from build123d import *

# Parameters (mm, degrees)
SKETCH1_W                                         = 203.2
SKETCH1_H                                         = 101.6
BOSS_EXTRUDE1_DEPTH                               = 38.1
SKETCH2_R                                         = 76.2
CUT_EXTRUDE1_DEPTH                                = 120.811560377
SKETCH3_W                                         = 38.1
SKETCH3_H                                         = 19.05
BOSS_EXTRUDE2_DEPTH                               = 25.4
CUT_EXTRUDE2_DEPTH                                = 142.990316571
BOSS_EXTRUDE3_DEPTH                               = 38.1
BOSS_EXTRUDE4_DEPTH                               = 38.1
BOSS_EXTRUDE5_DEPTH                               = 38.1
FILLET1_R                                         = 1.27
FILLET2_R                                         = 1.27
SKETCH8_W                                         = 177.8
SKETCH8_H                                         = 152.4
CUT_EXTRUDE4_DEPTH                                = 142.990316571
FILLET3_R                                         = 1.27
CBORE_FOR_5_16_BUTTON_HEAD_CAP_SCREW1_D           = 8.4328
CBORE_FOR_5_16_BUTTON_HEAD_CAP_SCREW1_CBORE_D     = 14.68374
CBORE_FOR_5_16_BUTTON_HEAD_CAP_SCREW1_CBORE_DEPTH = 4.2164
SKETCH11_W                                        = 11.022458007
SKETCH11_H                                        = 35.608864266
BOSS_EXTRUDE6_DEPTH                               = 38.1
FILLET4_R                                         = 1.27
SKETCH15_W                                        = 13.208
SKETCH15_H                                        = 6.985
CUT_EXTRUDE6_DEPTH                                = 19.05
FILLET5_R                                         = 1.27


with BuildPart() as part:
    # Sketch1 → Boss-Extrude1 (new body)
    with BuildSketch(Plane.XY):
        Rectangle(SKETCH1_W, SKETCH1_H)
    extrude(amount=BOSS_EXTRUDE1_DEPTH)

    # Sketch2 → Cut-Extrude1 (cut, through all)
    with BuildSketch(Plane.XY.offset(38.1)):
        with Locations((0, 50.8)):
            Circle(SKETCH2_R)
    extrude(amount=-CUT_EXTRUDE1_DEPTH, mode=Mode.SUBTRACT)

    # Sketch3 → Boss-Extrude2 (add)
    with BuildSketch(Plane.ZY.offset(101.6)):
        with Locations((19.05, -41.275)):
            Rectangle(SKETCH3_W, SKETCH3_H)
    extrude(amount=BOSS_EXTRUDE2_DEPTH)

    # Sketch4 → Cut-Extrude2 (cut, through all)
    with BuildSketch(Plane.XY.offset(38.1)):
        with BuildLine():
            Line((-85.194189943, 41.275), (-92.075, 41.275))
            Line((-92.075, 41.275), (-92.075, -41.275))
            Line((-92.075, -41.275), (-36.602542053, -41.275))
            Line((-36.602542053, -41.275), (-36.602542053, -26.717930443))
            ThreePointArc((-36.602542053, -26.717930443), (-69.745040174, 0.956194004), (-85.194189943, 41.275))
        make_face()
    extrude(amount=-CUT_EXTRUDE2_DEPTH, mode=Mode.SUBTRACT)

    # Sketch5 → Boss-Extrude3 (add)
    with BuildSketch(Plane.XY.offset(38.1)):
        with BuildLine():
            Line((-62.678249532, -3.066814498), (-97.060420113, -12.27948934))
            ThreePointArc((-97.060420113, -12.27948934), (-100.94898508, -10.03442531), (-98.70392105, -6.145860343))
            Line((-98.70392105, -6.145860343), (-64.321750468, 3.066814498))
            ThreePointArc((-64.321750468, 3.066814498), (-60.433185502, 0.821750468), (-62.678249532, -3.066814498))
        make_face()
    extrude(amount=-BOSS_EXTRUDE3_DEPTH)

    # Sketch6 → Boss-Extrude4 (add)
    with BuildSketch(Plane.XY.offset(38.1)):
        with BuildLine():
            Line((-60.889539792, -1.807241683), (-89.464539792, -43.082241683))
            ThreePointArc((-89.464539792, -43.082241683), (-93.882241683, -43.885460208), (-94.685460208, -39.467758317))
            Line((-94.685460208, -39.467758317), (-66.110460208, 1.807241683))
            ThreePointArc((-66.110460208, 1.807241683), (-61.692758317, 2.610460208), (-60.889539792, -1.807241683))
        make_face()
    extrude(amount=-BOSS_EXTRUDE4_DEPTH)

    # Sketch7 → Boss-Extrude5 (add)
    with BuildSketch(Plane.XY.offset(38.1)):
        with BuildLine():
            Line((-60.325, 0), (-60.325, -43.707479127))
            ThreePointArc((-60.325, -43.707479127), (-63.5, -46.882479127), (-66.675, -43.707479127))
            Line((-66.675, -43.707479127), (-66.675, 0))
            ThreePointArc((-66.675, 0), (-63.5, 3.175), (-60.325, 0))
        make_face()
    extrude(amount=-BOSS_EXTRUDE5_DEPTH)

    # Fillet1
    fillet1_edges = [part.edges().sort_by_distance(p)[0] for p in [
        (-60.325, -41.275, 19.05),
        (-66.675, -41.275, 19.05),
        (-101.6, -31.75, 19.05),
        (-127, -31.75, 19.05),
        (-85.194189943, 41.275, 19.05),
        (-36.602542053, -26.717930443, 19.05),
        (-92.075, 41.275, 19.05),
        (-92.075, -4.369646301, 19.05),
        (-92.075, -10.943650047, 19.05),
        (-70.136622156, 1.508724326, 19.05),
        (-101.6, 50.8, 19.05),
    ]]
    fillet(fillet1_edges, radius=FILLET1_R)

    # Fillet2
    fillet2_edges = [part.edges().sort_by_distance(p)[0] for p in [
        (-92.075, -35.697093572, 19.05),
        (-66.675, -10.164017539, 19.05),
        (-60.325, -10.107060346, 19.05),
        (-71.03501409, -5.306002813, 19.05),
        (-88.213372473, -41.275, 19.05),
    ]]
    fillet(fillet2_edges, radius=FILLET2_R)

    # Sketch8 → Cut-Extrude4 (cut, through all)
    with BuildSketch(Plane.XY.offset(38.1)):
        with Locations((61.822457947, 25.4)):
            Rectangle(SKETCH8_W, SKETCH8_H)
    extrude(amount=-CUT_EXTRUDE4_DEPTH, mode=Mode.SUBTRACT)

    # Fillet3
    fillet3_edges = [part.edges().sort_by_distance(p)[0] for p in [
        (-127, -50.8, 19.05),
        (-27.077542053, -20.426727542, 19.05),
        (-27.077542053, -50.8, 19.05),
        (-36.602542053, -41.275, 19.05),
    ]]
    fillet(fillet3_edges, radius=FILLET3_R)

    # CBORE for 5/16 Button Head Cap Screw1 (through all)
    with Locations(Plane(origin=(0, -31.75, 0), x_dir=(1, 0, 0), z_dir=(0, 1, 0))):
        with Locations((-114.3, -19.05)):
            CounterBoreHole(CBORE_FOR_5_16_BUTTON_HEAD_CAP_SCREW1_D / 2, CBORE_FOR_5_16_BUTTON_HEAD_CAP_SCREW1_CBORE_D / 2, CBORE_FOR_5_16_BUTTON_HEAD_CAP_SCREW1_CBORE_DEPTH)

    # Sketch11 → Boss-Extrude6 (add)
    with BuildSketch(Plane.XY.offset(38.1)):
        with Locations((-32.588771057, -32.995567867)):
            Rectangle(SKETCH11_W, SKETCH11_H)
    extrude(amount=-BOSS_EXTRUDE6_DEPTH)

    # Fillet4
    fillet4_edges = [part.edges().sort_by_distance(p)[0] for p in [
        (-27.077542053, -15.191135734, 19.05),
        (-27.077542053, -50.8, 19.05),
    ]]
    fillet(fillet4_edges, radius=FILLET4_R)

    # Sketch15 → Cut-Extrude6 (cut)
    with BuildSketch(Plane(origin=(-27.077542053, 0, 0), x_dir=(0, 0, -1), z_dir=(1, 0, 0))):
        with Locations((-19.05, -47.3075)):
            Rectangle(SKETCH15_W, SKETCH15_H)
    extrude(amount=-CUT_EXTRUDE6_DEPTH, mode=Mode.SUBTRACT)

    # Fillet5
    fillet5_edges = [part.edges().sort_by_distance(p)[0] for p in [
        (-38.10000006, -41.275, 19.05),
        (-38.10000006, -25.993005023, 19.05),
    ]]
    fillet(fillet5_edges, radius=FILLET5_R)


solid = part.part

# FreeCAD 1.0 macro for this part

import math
import FreeCAD as App
import Part
import Sketcher

V = App.Vector
Q = App.Units.Quantity


def edges_at(feature, points):
    """Names of the edges that pass closest to the given points."""
    edges = feature.Shape.Edges
    near = lambda p: min(range(len(edges)), key=lambda i: edges[i].distToShape(Part.Vertex(*p))[0])
    return sorted({f"Edge{near(p) + 1}" for p in points})

doc = App.newDocument("Part")
params = doc.addObject("Spreadsheet::Sheet", "Params")
for row, (alias, value) in enumerate([
    ("sketch1_width", "8 in"),
    ("sketch1_height", "4 in"),
    ("pad1_length", "1.5 in"),
    ("sketch2_diameter", "6 in"),
    ("sketch3_height", "1.5 in"),
    ("sketch3_width", "0.75 in"),
    ("pad2_length", "1 in"),
    ("sketch4_radius", "3.375 in"),
    ("sketch4_height", "3.25 in"),
    ("sketch5_radius", "0.125 in"),
    ("pad3_length", "1.5 in"),
    ("sketch6_radius", "0.125 in"),
    ("pad4_length", "1.5 in"),
    ("sketch7_radius", "0.125 in"),
    ("pad5_length", "1.5 in"),
    ("fillet_radius", "0.05 in"),
    ("fillet2_radius", "0.05 in"),
    ("sketch8_width", "7 in"),
    ("sketch8_height", "6 in"),
    ("fillet3_radius", "0.05 in"),
    ("sketch9_diameter", "0.332 in"),
    ("hole_diameter", "0.332 in"),
    ("hole_cbore_diameter", "0.5781 in"),
    ("hole_cbore_depth", "0.166 in"),
    ("pad6_length", "1.5 in"),
    ("fillet4_radius", "0.05 in"),
    ("sketch11_height", "0.52 in"),
    ("sketch11_width", "0.275 in"),
    ("pocket4_length", "0.75 in"),
    ("fillet5_radius", "0.05 in"),
], start=1):
    params.set(f"A{row}", alias)
    params.set(f"B{row}", "=" + value)
    params.setAlias(f"B{row}", alias)

body = doc.addObject("PartDesign::Body", "Body")

# Sketch on XY plane
sketch1 = body.newObject("Sketcher::SketchObject", "Sketch")
sketch1.AttachmentSupport = (doc.getObject("XY_Plane"), [""])
sketch1.MapMode = "FlatFace"
sketch1.addGeometry(Part.LineSegment(V(-101.6, 50.8, 0), V(-101.6, -50.8, 0)), False)
sketch1.addGeometry(Part.LineSegment(V(-101.6, -50.8, 0), V(101.6, -50.8, 0)), False)
sketch1.addGeometry(Part.LineSegment(V(101.6, -50.8, 0), V(101.6, 50.8, 0)), False)
sketch1.addGeometry(Part.LineSegment(V(101.6, 50.8, 0), V(-101.6, 50.8, 0)), False)
sketch1.addConstraint(Sketcher.Constraint("Coincident", 0, 2, 1, 1))
sketch1.addConstraint(Sketcher.Constraint("Coincident", 1, 2, 2, 1))
sketch1.addConstraint(Sketcher.Constraint("Coincident", 2, 2, 3, 1))
sketch1.addConstraint(Sketcher.Constraint("Coincident", 3, 2, 0, 1))
sketch1.addConstraint(Sketcher.Constraint("Vertical", 0))
sketch1.addConstraint(Sketcher.Constraint("Horizontal", 1))
sketch1.addConstraint(Sketcher.Constraint("Vertical", 2))
sketch1.addConstraint(Sketcher.Constraint("Horizontal", 3))
sketch1.addConstraint(Sketcher.Constraint("Symmetric", 0, 2, 2, 2, -1, 1))
sketch1.addConstraint(Sketcher.Constraint("DistanceX", 1, 1, 1, 2, Q("8 in")))
sketch1.addConstraint(Sketcher.Constraint("DistanceY", 0, 2, 0, 1, Q("4 in")))
sketch1.setExpression("Constraints[9]", "Params.sketch1_width")
sketch1.setExpression("Constraints[10]", "Params.sketch1_height")
pad1 = body.newObject("PartDesign::Pad", "Pad")
pad1.Profile = sketch1
pad1.setExpression("Length", "Params.pad1_length")

# Sketch on XY plane
sketch2 = body.newObject("Sketcher::SketchObject", "Sketch001")
sketch2.AttachmentSupport = (doc.getObject("XY_Plane"), [""])
sketch2.MapMode = "FlatFace"
sketch2.AttachmentOffset = App.Placement(V(0, 0, 1.5 * 25.4), App.Rotation())
sketch2.addGeometry(Part.Circle(V(0, 50.8, 0), V(0, 0, 1), 76.2), False)
sketch2.addConstraint(Sketcher.Constraint("PointOnObject", 0, 3, -2))
sketch2.addConstraint(Sketcher.Constraint("Diameter", 0, Q("6 in")))
sketch2.addConstraint(Sketcher.Constraint("DistanceY", -1, 1, 0, 3, Q("2 in")))
sketch2.setExpression("Constraints[1]", "Params.sketch2_diameter")
pocket1 = body.newObject("PartDesign::Pocket", "Pocket")
pocket1.Profile = sketch2
pocket1.Type = "ThroughAll"

# Sketch on YZ plane
sketch3 = body.newObject("Sketcher::SketchObject", "Sketch002")
sketch3.AttachmentSupport = (doc.getObject("YZ_Plane"), [""])
sketch3.MapMode = "FlatFace"
sketch3.AttachmentOffset = App.Placement(V(0, 0, -4 * 25.4), App.Rotation())
sketch3.addGeometry(Part.LineSegment(V(-31.75, 0, 0), V(-50.8, 0, 0)), False)
sketch3.addGeometry(Part.LineSegment(V(-50.8, 0, 0), V(-50.8, 38.1, 0)), False)
sketch3.addGeometry(Part.LineSegment(V(-50.8, 38.1, 0), V(-31.75, 38.1, 0)), False)
sketch3.addGeometry(Part.LineSegment(V(-31.75, 38.1, 0), V(-31.75, 0, 0)), False)
sketch3.addConstraint(Sketcher.Constraint("Coincident", 0, 2, 1, 1))
sketch3.addConstraint(Sketcher.Constraint("Coincident", 1, 2, 2, 1))
sketch3.addConstraint(Sketcher.Constraint("Coincident", 2, 2, 3, 1))
sketch3.addConstraint(Sketcher.Constraint("Coincident", 3, 2, 0, 1))
sketch3.addConstraint(Sketcher.Constraint("Horizontal", 0))
sketch3.addConstraint(Sketcher.Constraint("Vertical", 1))
sketch3.addConstraint(Sketcher.Constraint("Horizontal", 2))
sketch3.addConstraint(Sketcher.Constraint("Vertical", 3))
sketch3.addConstraint(Sketcher.Constraint("PointOnObject", 0, 2, -1))
sketch3.addConstraint(Sketcher.Constraint("DistanceY", 1, 1, 1, 2, Q("1.5 in")))
sketch3.addConstraint(Sketcher.Constraint("DistanceX", 0, 2, -1, 1, Q("2 in")))
sketch3.addConstraint(Sketcher.Constraint("DistanceX", 0, 2, 0, 1, Q("0.75 in")))
sketch3.setExpression("Constraints[9]", "Params.sketch3_height")
sketch3.setExpression("Constraints[11]", "Params.sketch3_width")
pad2 = body.newObject("PartDesign::Pad", "Pad001")
pad2.Profile = sketch3
pad2.setExpression("Length", "Params.pad2_length")
pad2.Reversed = True

# Sketch on XY plane
sketch4 = body.newObject("Sketcher::SketchObject", "Sketch003")
sketch4.AttachmentSupport = (doc.getObject("XY_Plane"), [""])
sketch4.MapMode = "FlatFace"
sketch4.AttachmentOffset = App.Placement(V(0, 0, 1.5 * 25.4), App.Rotation())
sketch4.addGeometry(Part.LineSegment(V(-85.19419, 41.275, 0), V(-92.075, 41.275, 0)), False)
sketch4.addGeometry(Part.LineSegment(V(-92.075, 41.275, 0), V(-92.075, -41.275, 0)), False)
sketch4.addGeometry(Part.LineSegment(V(-92.075, -41.275, 0), V(-36.602542, -41.275, 0)), False)
sketch4.addGeometry(Part.LineSegment(V(-36.602542, -41.275, 0), V(-36.602542, -26.71793, 0)), False)
sketch4.addGeometry(Part.ArcOfCircle(Part.Circle(V(0, 50.8, 0), V(0, 0, 1), 85.725), math.radians(-173.62063), math.radians(-115.27582)), False)
sketch4.addConstraint(Sketcher.Constraint("Coincident", 0, 2, 1, 1))
sketch4.addConstraint(Sketcher.Constraint("Coincident", 1, 2, 2, 1))
sketch4.addConstraint(Sketcher.Constraint("Coincident", 2, 2, 3, 1))
sketch4.addConstraint(Sketcher.Constraint("Coincident", 3, 2, 4, 2))
sketch4.addConstraint(Sketcher.Constraint("Coincident", 4, 1, 0, 1))
sketch4.addConstraint(Sketcher.Constraint("Horizontal", 0))
sketch4.addConstraint(Sketcher.Constraint("Vertical", 1))
sketch4.addConstraint(Sketcher.Constraint("Horizontal", 2))
sketch4.addConstraint(Sketcher.Constraint("Vertical", 3))
sketch4.addConstraint(Sketcher.Constraint("PointOnObject", 4, 3, -2))
sketch4.addConstraint(Sketcher.Constraint("DistanceY", -1, 1, 4, 3, Q("2 in")))
sketch4.addConstraint(Sketcher.Constraint("Radius", 4, Q("3.375 in")))
sketch4.addConstraint(Sketcher.Constraint("DistanceY", 1, 2, 1, 1, Q("3.25 in")))
sketch4.addConstraint(Sketcher.Constraint("DistanceX", 0, 2, -1, 1, Q("3.625 in")))
sketch4.addConstraint(Sketcher.Constraint("DistanceY", -1, 1, 0, 2, Q("1.625 in")))
sketch4.addConstraint(Sketcher.Constraint("DistanceY", 3, 1, 3, 2, Q("14.55707 mm")))
sketch4.setExpression("Constraints[11]", "Params.sketch4_radius")
sketch4.setExpression("Constraints[12]", "Params.sketch4_height")
pocket2 = body.newObject("PartDesign::Pocket", "Pocket001")
pocket2.Profile = sketch4
pocket2.Type = "ThroughAll"

# Sketch on XY plane
sketch5 = body.newObject("Sketcher::SketchObject", "Sketch004")
sketch5.AttachmentSupport = (doc.getObject("XY_Plane"), [""])
sketch5.MapMode = "FlatFace"
sketch5.AttachmentOffset = App.Placement(V(0, 0, 1.5 * 25.4), App.Rotation())
sketch5.addGeometry(Part.LineSegment(V(-97.06042, -12.279489, 0), V(-62.67825, -3.066814, 0)), False)
sketch5.addGeometry(Part.ArcOfCircle(Part.Circle(V(-63.5, 0, 0), V(0, 0, 1), 3.175), math.radians(-75), math.radians(105)), False)
sketch5.addGeometry(Part.LineSegment(V(-64.32175, 3.066814, 0), V(-98.703921, -6.14586, 0)), False)
sketch5.addGeometry(Part.ArcOfCircle(Part.Circle(V(-97.882171, -9.212675, 0), V(0, 0, 1), 3.175), math.radians(105), math.radians(285)), False)
sketch5.addConstraint(Sketcher.Constraint("Tangent", 0, 2, 1, 1))
sketch5.addConstraint(Sketcher.Constraint("Tangent", 1, 2, 2, 1))
sketch5.addConstraint(Sketcher.Constraint("Tangent", 2, 2, 3, 1))
sketch5.addConstraint(Sketcher.Constraint("Tangent", 3, 2, 0, 1))
sketch5.addConstraint(Sketcher.Constraint("Equal", 1, 3))
sketch5.addConstraint(Sketcher.Constraint("PointOnObject", 1, 3, -1))
sketch5.addConstraint(Sketcher.Constraint("Angle", 0, Q("15 deg")))
sketch5.addConstraint(Sketcher.Constraint("Radius", 1, Q("0.125 in")))
sketch5.addConstraint(Sketcher.Constraint("DistanceX", 1, 3, -1, 1, Q("2.5 in")))
sketch5.addConstraint(Sketcher.Constraint("DistanceX", 3, 3, -1, 1, Q("97.882171 mm")))
sketch5.setExpression("Constraints[7]", "Params.sketch5_radius")
pad3 = body.newObject("PartDesign::Pad", "Pad002")
pad3.Profile = sketch5
pad3.setExpression("Length", "Params.pad3_length")
pad3.Reversed = True

# Sketch on XY plane
sketch6 = body.newObject("Sketcher::SketchObject", "Sketch005")
sketch6.AttachmentSupport = (doc.getObject("XY_Plane"), [""])
sketch6.MapMode = "FlatFace"
sketch6.AttachmentOffset = App.Placement(V(0, 0, 1.5 * 25.4), App.Rotation())
sketch6.addGeometry(Part.LineSegment(V(-89.46454, -43.082242, 0), V(-60.88954, -1.807242, 0)), False)
sketch6.addGeometry(Part.ArcOfCircle(Part.Circle(V(-63.5, 0, 0), V(0, 0, 1), 3.175), math.radians(-34.695154), math.radians(145.304846)), False)
sketch6.addGeometry(Part.LineSegment(V(-66.11046, 1.807242, 0), V(-94.68546, -39.467758, 0)), False)
sketch6.addGeometry(Part.ArcOfCircle(Part.Circle(V(-92.075, -41.275, 0), V(0, 0, 1), 3.175), math.radians(145.304846), math.radians(325.304846)), False)
sketch6.addConstraint(Sketcher.Constraint("Tangent", 0, 2, 1, 1))
sketch6.addConstraint(Sketcher.Constraint("Tangent", 1, 2, 2, 1))
sketch6.addConstraint(Sketcher.Constraint("Tangent", 2, 2, 3, 1))
sketch6.addConstraint(Sketcher.Constraint("Tangent", 3, 2, 0, 1))
sketch6.addConstraint(Sketcher.Constraint("Equal", 1, 3))
sketch6.addConstraint(Sketcher.Constraint("PointOnObject", 1, 3, -1))
sketch6.addConstraint(Sketcher.Constraint("Radius", 1, Q("0.125 in")))
sketch6.addConstraint(Sketcher.Constraint("DistanceX", 1, 3, -1, 1, Q("2.5 in")))
sketch6.addConstraint(Sketcher.Constraint("DistanceX", 3, 3, -1, 1, Q("3.625 in")))
sketch6.addConstraint(Sketcher.Constraint("DistanceY", 3, 3, -1, 1, Q("1.625 in")))
sketch6.setExpression("Constraints[6]", "Params.sketch6_radius")
pad4 = body.newObject("PartDesign::Pad", "Pad003")
pad4.Profile = sketch6
pad4.setExpression("Length", "Params.pad4_length")
pad4.Reversed = True

# Sketch on XY plane
sketch7 = body.newObject("Sketcher::SketchObject", "Sketch006")
sketch7.AttachmentSupport = (doc.getObject("XY_Plane"), [""])
sketch7.MapMode = "FlatFace"
sketch7.AttachmentOffset = App.Placement(V(0, 0, 1.5 * 25.4), App.Rotation())
sketch7.addGeometry(Part.LineSegment(V(-60.325, -43.707479, 0), V(-60.325, 0, 0)), False)
sketch7.addGeometry(Part.ArcOfCircle(Part.Circle(V(-63.5, 0, 0), V(0, 0, 1), 3.175), math.radians(0), math.radians(180)), False)
sketch7.addGeometry(Part.LineSegment(V(-66.675, 0, 0), V(-66.675, -43.707479, 0)), False)
sketch7.addGeometry(Part.ArcOfCircle(Part.Circle(V(-63.5, -43.707479, 0), V(0, 0, 1), 3.175), math.radians(180), math.radians(360)), False)
sketch7.addConstraint(Sketcher.Constraint("Tangent", 0, 2, 1, 1))
sketch7.addConstraint(Sketcher.Constraint("Tangent", 1, 2, 2, 1))
sketch7.addConstraint(Sketcher.Constraint("Tangent", 2, 2, 3, 1))
sketch7.addConstraint(Sketcher.Constraint("Tangent", 3, 2, 0, 1))
sketch7.addConstraint(Sketcher.Constraint("Vertical", 0))
sketch7.addConstraint(Sketcher.Constraint("Vertical", 2))
sketch7.addConstraint(Sketcher.Constraint("PointOnObject", 1, 3, -1))
sketch7.addConstraint(Sketcher.Constraint("Radius", 1, Q("0.125 in")))
sketch7.addConstraint(Sketcher.Constraint("DistanceX", 1, 3, -1, 1, Q("2.5 in")))
sketch7.addConstraint(Sketcher.Constraint("DistanceY", 0, 1, 0, 2, Q("43.707479 mm")))
sketch7.setExpression("Constraints[7]", "Params.sketch7_radius")
pad5 = body.newObject("PartDesign::Pad", "Pad004")
pad5.Profile = sketch7
pad5.setExpression("Length", "Params.pad5_length")
pad5.Reversed = True
doc.recompute()

fillet = body.newObject("PartDesign::Fillet", "Fillet")
fillet.Base = (pad5, edges_at(pad5, [
    (-60.325, -41.275, 19.05),
    (-66.675, -41.275, 19.05),
    (-101.6, -31.75, 19.05),
    (-127, -31.75, 19.05),
    (-85.194, 41.275, 19.05),
    (-36.603, -26.718, 19.05),
    (-92.075, 41.275, 19.05),
    (-92.075, -4.37, 19.05),
    (-92.075, -10.944, 19.05),
    (-70.137, 1.509, 19.05),
    (-101.6, 50.8, 19.05),
]))
fillet.setExpression("Radius", "Params.fillet_radius")
doc.recompute()

fillet2 = body.newObject("PartDesign::Fillet", "Fillet001")
fillet2.Base = (fillet, edges_at(fillet, [
    (-92.075, -35.697, 19.05),
    (-66.675, -10.164, 19.05),
    (-60.325, -10.107, 19.05),
    (-71.035, -5.306, 19.05),
    (-88.213, -41.275, 19.05),
]))
fillet2.setExpression("Radius", "Params.fillet2_radius")

# Sketch on XY plane
sketch8 = body.newObject("Sketcher::SketchObject", "Sketch007")
sketch8.AttachmentSupport = (doc.getObject("XY_Plane"), [""])
sketch8.MapMode = "FlatFace"
sketch8.AttachmentOffset = App.Placement(V(0, 0, 1.5 * 25.4), App.Rotation())
sketch8.addGeometry(Part.LineSegment(V(-27.077542, 101.6, 0), V(-27.077542, -50.8, 0)), False)
sketch8.addGeometry(Part.LineSegment(V(-27.077542, -50.8, 0), V(150.722458, -50.8, 0)), False)
sketch8.addGeometry(Part.LineSegment(V(150.722458, -50.8, 0), V(150.722458, 101.6, 0)), False)
sketch8.addGeometry(Part.LineSegment(V(150.722458, 101.6, 0), V(-27.077542, 101.6, 0)), False)
sketch8.addConstraint(Sketcher.Constraint("Coincident", 0, 2, 1, 1))
sketch8.addConstraint(Sketcher.Constraint("Coincident", 1, 2, 2, 1))
sketch8.addConstraint(Sketcher.Constraint("Coincident", 2, 2, 3, 1))
sketch8.addConstraint(Sketcher.Constraint("Coincident", 3, 2, 0, 1))
sketch8.addConstraint(Sketcher.Constraint("Vertical", 0))
sketch8.addConstraint(Sketcher.Constraint("Horizontal", 1))
sketch8.addConstraint(Sketcher.Constraint("Vertical", 2))
sketch8.addConstraint(Sketcher.Constraint("Horizontal", 3))
sketch8.addConstraint(Sketcher.Constraint("DistanceX", 1, 1, 1, 2, Q("7 in")))
sketch8.addConstraint(Sketcher.Constraint("DistanceY", 0, 2, 0, 1, Q("6 in")))
sketch8.addConstraint(Sketcher.Constraint("DistanceY", 0, 2, -1, 1, Q("2 in")))
sketch8.addConstraint(Sketcher.Constraint("DistanceX", 0, 2, -1, 1, Q("27.077542 mm")))
sketch8.setExpression("Constraints[8]", "Params.sketch8_width")
sketch8.setExpression("Constraints[9]", "Params.sketch8_height")
pocket3 = body.newObject("PartDesign::Pocket", "Pocket002")
pocket3.Profile = sketch8
pocket3.Type = "ThroughAll"
doc.recompute()

fillet3 = body.newObject("PartDesign::Fillet", "Fillet002")
fillet3.Base = (pocket3, edges_at(pocket3, [
    (-127, -50.8, 19.05),
    (-27.078, -20.427, 19.05),
    (-27.078, -50.8, 19.05),
    (-36.603, -41.275, 19.05),
]))
fillet3.setExpression("Radius", "Params.fillet3_radius")

# Sketch on XZ plane
sketch9 = body.newObject("Sketcher::SketchObject", "Sketch008")
sketch9.AttachmentSupport = (doc.getObject("XZ_Plane"), [""])
sketch9.MapMode = "FlatFace"
sketch9.AttachmentOffset = App.Placement(V(0, 0, 1.25 * 25.4), App.Rotation())
sketch9.addGeometry(Part.Circle(V(-114.3, 19.05, 0), V(0, 0, 1), 4.2164), False)
sketch9.addConstraint(Sketcher.Constraint("Diameter", 0, Q("0.332 in")))
sketch9.addConstraint(Sketcher.Constraint("DistanceX", 0, 3, -1, 1, Q("4.5 in")))
sketch9.addConstraint(Sketcher.Constraint("DistanceY", -1, 1, 0, 3, Q("0.75 in")))
sketch9.setExpression("Constraints[0]", "Params.sketch9_diameter")
doc.recompute()
hole = body.newObject("PartDesign::Hole", "Hole")
hole.Profile = sketch9
hole.ThreadType = "None"
hole.setExpression("Diameter", "Params.hole_diameter")
hole.DepthType = "ThroughAll"
hole.HoleCutType = "Counterbore"
hole.setExpression("HoleCutDiameter", "Params.hole_cbore_diameter")
hole.setExpression("HoleCutDepth", "Params.hole_cbore_depth")
hole.Reversed = True

# Sketch on XY plane
sketch10 = body.newObject("Sketcher::SketchObject", "Sketch009")
sketch10.AttachmentSupport = (doc.getObject("XY_Plane"), [""])
sketch10.MapMode = "FlatFace"
sketch10.AttachmentOffset = App.Placement(V(0, 0, 1.5 * 25.4), App.Rotation())
sketch10.addGeometry(Part.LineSegment(V(-38.1, -15.191136, 0), V(-38.1, -50.8, 0)), False)
sketch10.addGeometry(Part.LineSegment(V(-38.1, -50.8, 0), V(-27.077542, -50.8, 0)), False)
sketch10.addGeometry(Part.LineSegment(V(-27.077542, -50.8, 0), V(-27.077542, -15.191136, 0)), False)
sketch10.addGeometry(Part.LineSegment(V(-27.077542, -15.191136, 0), V(-38.1, -15.191136, 0)), False)
sketch10.addConstraint(Sketcher.Constraint("Coincident", 0, 2, 1, 1))
sketch10.addConstraint(Sketcher.Constraint("Coincident", 1, 2, 2, 1))
sketch10.addConstraint(Sketcher.Constraint("Coincident", 2, 2, 3, 1))
sketch10.addConstraint(Sketcher.Constraint("Coincident", 3, 2, 0, 1))
sketch10.addConstraint(Sketcher.Constraint("Vertical", 0))
sketch10.addConstraint(Sketcher.Constraint("Horizontal", 1))
sketch10.addConstraint(Sketcher.Constraint("Vertical", 2))
sketch10.addConstraint(Sketcher.Constraint("Horizontal", 3))
sketch10.addConstraint(Sketcher.Constraint("DistanceY", 0, 2, -1, 1, Q("2 in")))
sketch10.addConstraint(Sketcher.Constraint("DistanceX", 0, 2, -1, 1, Q("1.5 in")))
sketch10.addConstraint(Sketcher.Constraint("DistanceX", 1, 1, 1, 2, Q("11.022458 mm")))
sketch10.addConstraint(Sketcher.Constraint("DistanceY", 0, 2, 0, 1, Q("35.608864 mm")))
pad6 = body.newObject("PartDesign::Pad", "Pad005")
pad6.Profile = sketch10
pad6.setExpression("Length", "Params.pad6_length")
pad6.Reversed = True
doc.recompute()

fillet4 = body.newObject("PartDesign::Fillet", "Fillet003")
fillet4.Base = (pad6, edges_at(pad6, [(-27.078, -15.191, 19.05), (-27.078, -50.8, 19.05)]))
fillet4.setExpression("Radius", "Params.fillet4_radius")

# Sketch on YZ plane
sketch11 = body.newObject("Sketcher::SketchObject", "Sketch010")
sketch11.AttachmentSupport = (doc.getObject("YZ_Plane"), [""])
sketch11.MapMode = "FlatFace"
sketch11.AttachmentOffset = App.Placement(V(0, 0, -27.077542), App.Rotation())
sketch11.addGeometry(Part.LineSegment(V(-43.815, 25.654, 0), V(-50.8, 25.654, 0)), False)
sketch11.addGeometry(Part.LineSegment(V(-50.8, 25.654, 0), V(-50.8, 12.446, 0)), False)
sketch11.addGeometry(Part.LineSegment(V(-50.8, 12.446, 0), V(-43.815, 12.446, 0)), False)
sketch11.addGeometry(Part.LineSegment(V(-43.815, 12.446, 0), V(-43.815, 25.654, 0)), False)
sketch11.addConstraint(Sketcher.Constraint("Coincident", 0, 2, 1, 1))
sketch11.addConstraint(Sketcher.Constraint("Coincident", 1, 2, 2, 1))
sketch11.addConstraint(Sketcher.Constraint("Coincident", 2, 2, 3, 1))
sketch11.addConstraint(Sketcher.Constraint("Coincident", 3, 2, 0, 1))
sketch11.addConstraint(Sketcher.Constraint("Horizontal", 0))
sketch11.addConstraint(Sketcher.Constraint("Vertical", 1))
sketch11.addConstraint(Sketcher.Constraint("Horizontal", 2))
sketch11.addConstraint(Sketcher.Constraint("Vertical", 3))
sketch11.addConstraint(Sketcher.Constraint("DistanceX", 0, 2, -1, 1, Q("2 in")))
sketch11.addConstraint(Sketcher.Constraint("DistanceY", 1, 2, 1, 1, Q("0.52 in")))
sketch11.addConstraint(Sketcher.Constraint("DistanceX", 0, 2, 0, 1, Q("0.275 in")))
sketch11.addConstraint(Sketcher.Constraint("DistanceY", -1, 1, 0, 2, Q("1.01 in")))
sketch11.setExpression("Constraints[9]", "Params.sketch11_height")
sketch11.setExpression("Constraints[10]", "Params.sketch11_width")
pocket4 = body.newObject("PartDesign::Pocket", "Pocket003")
pocket4.Profile = sketch11
pocket4.setExpression("Length", "Params.pocket4_length")
doc.recompute()

fillet5 = body.newObject("PartDesign::Fillet", "Fillet004")
fillet5.Base = (pocket4, edges_at(pocket4, [(-38.1, -41.275, 19.05), (-38.1, -25.993, 19.05)]))
fillet5.setExpression("Radius", "Params.fillet5_radius")

doc.recompute()
